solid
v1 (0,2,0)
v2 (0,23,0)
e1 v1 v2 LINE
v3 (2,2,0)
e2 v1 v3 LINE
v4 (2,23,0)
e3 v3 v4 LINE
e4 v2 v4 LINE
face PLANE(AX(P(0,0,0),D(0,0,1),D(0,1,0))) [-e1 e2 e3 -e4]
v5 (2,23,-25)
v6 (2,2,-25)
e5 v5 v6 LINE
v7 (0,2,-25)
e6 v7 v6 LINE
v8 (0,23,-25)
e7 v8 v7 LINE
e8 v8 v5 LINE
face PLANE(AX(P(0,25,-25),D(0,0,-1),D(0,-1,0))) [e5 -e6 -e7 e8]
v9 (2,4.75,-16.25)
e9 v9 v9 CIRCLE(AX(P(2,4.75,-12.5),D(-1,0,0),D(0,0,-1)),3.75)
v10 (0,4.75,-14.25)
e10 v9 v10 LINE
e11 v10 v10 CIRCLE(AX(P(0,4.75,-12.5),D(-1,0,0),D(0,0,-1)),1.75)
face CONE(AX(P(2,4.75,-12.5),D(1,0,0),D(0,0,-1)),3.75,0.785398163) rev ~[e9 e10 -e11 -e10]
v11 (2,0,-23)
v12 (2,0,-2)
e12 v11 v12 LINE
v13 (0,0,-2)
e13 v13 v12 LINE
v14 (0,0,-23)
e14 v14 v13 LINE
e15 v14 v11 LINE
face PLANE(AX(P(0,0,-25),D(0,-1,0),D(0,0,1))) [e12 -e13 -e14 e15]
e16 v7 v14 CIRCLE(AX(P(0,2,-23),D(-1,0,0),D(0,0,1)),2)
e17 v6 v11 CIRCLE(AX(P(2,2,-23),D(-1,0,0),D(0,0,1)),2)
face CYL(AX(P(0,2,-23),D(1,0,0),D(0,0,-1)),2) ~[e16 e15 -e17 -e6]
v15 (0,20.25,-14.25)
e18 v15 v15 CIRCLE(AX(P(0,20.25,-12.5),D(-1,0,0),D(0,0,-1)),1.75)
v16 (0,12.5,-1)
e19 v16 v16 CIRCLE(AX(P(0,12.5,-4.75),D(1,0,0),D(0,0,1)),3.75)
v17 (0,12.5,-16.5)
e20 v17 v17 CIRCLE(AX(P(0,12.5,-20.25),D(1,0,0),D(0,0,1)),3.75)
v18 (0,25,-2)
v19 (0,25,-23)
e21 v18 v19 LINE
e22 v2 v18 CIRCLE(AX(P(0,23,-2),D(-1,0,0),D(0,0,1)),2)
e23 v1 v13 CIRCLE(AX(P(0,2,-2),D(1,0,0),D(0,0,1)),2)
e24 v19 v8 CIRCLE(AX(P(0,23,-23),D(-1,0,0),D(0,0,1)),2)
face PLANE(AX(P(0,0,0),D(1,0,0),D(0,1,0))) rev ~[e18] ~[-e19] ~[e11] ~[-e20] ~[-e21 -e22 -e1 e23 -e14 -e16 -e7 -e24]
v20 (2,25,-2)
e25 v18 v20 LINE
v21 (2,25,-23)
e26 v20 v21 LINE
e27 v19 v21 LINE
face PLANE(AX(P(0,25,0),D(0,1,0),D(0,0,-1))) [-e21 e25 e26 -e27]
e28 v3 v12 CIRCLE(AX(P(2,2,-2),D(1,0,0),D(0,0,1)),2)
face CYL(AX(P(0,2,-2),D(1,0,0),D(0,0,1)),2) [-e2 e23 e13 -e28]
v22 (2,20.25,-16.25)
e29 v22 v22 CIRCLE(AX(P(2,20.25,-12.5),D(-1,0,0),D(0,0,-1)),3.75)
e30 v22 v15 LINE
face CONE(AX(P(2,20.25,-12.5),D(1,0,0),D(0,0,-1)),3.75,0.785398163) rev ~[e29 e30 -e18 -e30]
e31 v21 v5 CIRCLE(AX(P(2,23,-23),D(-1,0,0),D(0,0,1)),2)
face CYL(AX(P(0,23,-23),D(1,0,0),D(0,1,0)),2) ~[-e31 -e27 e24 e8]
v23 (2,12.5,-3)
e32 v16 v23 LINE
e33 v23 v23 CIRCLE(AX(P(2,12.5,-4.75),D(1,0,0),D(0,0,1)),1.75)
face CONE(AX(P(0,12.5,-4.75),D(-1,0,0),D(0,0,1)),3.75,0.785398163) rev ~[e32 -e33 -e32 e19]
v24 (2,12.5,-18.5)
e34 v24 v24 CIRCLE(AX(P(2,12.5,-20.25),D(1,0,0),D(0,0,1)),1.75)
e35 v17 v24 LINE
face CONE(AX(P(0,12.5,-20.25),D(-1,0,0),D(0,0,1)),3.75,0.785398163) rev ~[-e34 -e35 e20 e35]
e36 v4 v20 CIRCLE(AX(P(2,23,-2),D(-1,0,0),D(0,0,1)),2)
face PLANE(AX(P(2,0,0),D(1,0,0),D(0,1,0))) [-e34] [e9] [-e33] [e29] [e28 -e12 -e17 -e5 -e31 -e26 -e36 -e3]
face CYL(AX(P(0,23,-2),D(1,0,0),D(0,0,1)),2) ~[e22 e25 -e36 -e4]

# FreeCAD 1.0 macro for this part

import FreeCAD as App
import Part
import Sketcher
from FreeCAD import Vector


def edges_at(feature, points):
    """Names of the edges that pass closest to the given points."""
    edges = feature.Shape.Edges
    near = lambda p: min(range(len(edges)), key=lambda i: edges[i].distToShape(Part.Vertex(*p))[0])
    return sorted({f"Edge{near(p) + 1}" for p in points})


def add_polygon(sketch, points):
    """Adds a closed chain of lines whose ends are joined by coincident constraints."""
    first, n = sketch.GeometryCount, len(points)
    for a, b in zip(points, points[1:] + points[:1]):
        sketch.addGeometry(Part.LineSegment(App.Vector(*a, 0), App.Vector(*b, 0)), False)
    for i in range(n):
        sketch.addConstraint(Sketcher.Constraint("Coincident", first + i, 2, first + (i + 1) % n, 1))

doc = App.newDocument("Part")
params = doc.addObject("Spreadsheet::Sheet", "Params")
for row, (alias, value) in enumerate([
    ("sketch1_width", "25 mm"),
    ("pad1_length", "2 mm"),
    ("fillet_radius", "2 mm"),
    ("fillet2_radius", "2 mm"),
    ("fillet3_radius", "2 mm"),
    ("fillet4_radius", "2 mm"),
    ("hole_diameter", "3.242 mm"),
    ("hole_depth", "4 mm"),
    ("hole_csink_diameter", "7.5 mm"),
    ("hole2_diameter", "3.242 mm"),
    ("hole2_depth", "4 mm"),
    ("hole2_csink_diameter", "7.5 mm"),
], start=1):
    params.set(f"A{row}", alias)
    params.set(f"B{row}", "=" + value)
    params.setAlias(f"B{row}", alias)

body = doc.addObject("PartDesign::Body", "Body")

# Sketch on YZ plane
sketch1 = body.newObject("Sketcher::SketchObject", "Sketch")
sketch1.AttachmentSupport = (doc.getObject("YZ_Plane"), [""])
sketch1.MapMode = "FlatFace"
add_polygon(sketch1, [(25, 0), (0, 0), (0, -25), (25, -25)])  # lines 0-3
sketch1.addConstraint(Sketcher.Constraint("Horizontal", 0))
sketch1.addConstraint(Sketcher.Constraint("Vertical", 1))
sketch1.addConstraint(Sketcher.Constraint("Horizontal", 2))
sketch1.addConstraint(Sketcher.Constraint("Vertical", 3))
sketch1.addConstraint(Sketcher.Constraint("Coincident", 0, 2, -1, 1))
sketch1.addConstraint(Sketcher.Constraint("Equal", 2, 1))
sketch1.addConstraint(Sketcher.Constraint("DistanceX", 0, 2, 0, 1, 25.0))
sketch1.setExpression("Constraints[10]", "Params.sketch1_width")
pad1 = body.newObject("PartDesign::Pad", "Pad")
pad1.Profile = sketch1
pad1.setExpression("Length", "Params.pad1_length")
doc.recompute()

fillet = body.newObject("PartDesign::Fillet", "Fillet")
fillet.Base = (pad1, edges_at(pad1, [(1, 25, 0)]))
fillet.setExpression("Radius", "Params.fillet_radius")
doc.recompute()

fillet2 = body.newObject("PartDesign::Fillet", "Fillet001")
fillet2.Base = (fillet, edges_at(fillet, [(1, 0, 0)]))
fillet2.setExpression("Radius", "Params.fillet2_radius")
doc.recompute()

fillet3 = body.newObject("PartDesign::Fillet", "Fillet002")
fillet3.Base = (fillet2, edges_at(fillet2, [(1, 25, -25)]))
fillet3.setExpression("Radius", "Params.fillet3_radius")
doc.recompute()

fillet4 = body.newObject("PartDesign::Fillet", "Fillet003")
fillet4.Base = (fillet3, edges_at(fillet3, [(1, 0, -25)]))
fillet4.setExpression("Radius", "Params.fillet4_radius")

# Sketch on YZ plane
sketch2 = body.newObject("Sketcher::SketchObject", "Sketch001")
sketch2.AttachmentSupport = (doc.getObject("YZ_Plane"), [""])
sketch2.MapMode = "FlatFace"
sketch2.AttachmentOffset = App.Placement(Vector(0, 0, 2), App.Rotation())
sketch2.addGeometry(Part.Circle(Vector(20.25, -12.5, 0), Vector(0, 0, 1), 1.621), False)
sketch2.addGeometry(Part.Circle(Vector(4.75, -12.5, 0), Vector(0, 0, 1), 1.621), False)
sketch2.addConstraint(Sketcher.Constraint("Equal", 0, 1))
sketch2.addConstraint(Sketcher.Constraint("Horizontal", 0, 3, 1, 3))
sketch2.addConstraint(Sketcher.Constraint("Diameter", 0, 3.242))
sketch2.addConstraint(Sketcher.Constraint("DistanceY", 0, 3, -1, 1, 12.5))
sketch2.addConstraint(Sketcher.Constraint("DistanceX", 1, 3, 0, 3, 15.5))
sketch2.addConstraint(Sketcher.Constraint("DistanceX", -1, 1, 0, 3, 20.25))
doc.recompute()
hole = body.newObject("PartDesign::Hole", "Hole")
hole.Profile = sketch2
hole.ThreadType = "None"
hole.setExpression("Diameter", "Params.hole_diameter")
hole.DepthType = "Dimension"
hole.setExpression("Depth", "Params.hole_depth")
hole.DrillPoint = "Flat"
hole.HoleCutType = "Countersink"
hole.setExpression("HoleCutDiameter", "Params.hole_csink_diameter")
hole.HoleCutCountersinkAngle = 90

# Sketch on YZ plane
sketch3 = body.newObject("Sketcher::SketchObject", "Sketch002")
sketch3.AttachmentSupport = (doc.getObject("YZ_Plane"), [""])
sketch3.MapMode = "FlatFace"
sketch3.addGeometry(Part.Circle(Vector(12.5, -20.25, 0), Vector(0, 0, 1), 1.621), False)
sketch3.addGeometry(Part.Circle(Vector(12.5, -4.75, 0), Vector(0, 0, 1), 1.621), False)
sketch3.addConstraint(Sketcher.Constraint("Equal", 0, 1))
sketch3.addConstraint(Sketcher.Constraint("Vertical", 0, 3, 1, 3))
sketch3.addConstraint(Sketcher.Constraint("Diameter", 0, 3.242))
sketch3.addConstraint(Sketcher.Constraint("DistanceX", -1, 1, 0, 3, 12.5))
sketch3.addConstraint(Sketcher.Constraint("DistanceY", 0, 3, 1, 3, 15.5))
sketch3.addConstraint(Sketcher.Constraint("DistanceY", 0, 3, -1, 1, 20.25))
doc.recompute()
hole2 = body.newObject("PartDesign::Hole", "Hole001")
hole2.Profile = sketch3
hole2.ThreadType = "None"
hole2.setExpression("Diameter", "Params.hole2_diameter")
hole2.DepthType = "Dimension"
hole2.setExpression("Depth", "Params.hole2_depth")
hole2.DrillPoint = "Flat"
hole2.HoleCutType = "Countersink"
hole2.setExpression("HoleCutDiameter", "Params.hole2_csink_diameter")
hole2.HoleCutCountersinkAngle = 90
hole2.Reversed = True

doc.recompute()
